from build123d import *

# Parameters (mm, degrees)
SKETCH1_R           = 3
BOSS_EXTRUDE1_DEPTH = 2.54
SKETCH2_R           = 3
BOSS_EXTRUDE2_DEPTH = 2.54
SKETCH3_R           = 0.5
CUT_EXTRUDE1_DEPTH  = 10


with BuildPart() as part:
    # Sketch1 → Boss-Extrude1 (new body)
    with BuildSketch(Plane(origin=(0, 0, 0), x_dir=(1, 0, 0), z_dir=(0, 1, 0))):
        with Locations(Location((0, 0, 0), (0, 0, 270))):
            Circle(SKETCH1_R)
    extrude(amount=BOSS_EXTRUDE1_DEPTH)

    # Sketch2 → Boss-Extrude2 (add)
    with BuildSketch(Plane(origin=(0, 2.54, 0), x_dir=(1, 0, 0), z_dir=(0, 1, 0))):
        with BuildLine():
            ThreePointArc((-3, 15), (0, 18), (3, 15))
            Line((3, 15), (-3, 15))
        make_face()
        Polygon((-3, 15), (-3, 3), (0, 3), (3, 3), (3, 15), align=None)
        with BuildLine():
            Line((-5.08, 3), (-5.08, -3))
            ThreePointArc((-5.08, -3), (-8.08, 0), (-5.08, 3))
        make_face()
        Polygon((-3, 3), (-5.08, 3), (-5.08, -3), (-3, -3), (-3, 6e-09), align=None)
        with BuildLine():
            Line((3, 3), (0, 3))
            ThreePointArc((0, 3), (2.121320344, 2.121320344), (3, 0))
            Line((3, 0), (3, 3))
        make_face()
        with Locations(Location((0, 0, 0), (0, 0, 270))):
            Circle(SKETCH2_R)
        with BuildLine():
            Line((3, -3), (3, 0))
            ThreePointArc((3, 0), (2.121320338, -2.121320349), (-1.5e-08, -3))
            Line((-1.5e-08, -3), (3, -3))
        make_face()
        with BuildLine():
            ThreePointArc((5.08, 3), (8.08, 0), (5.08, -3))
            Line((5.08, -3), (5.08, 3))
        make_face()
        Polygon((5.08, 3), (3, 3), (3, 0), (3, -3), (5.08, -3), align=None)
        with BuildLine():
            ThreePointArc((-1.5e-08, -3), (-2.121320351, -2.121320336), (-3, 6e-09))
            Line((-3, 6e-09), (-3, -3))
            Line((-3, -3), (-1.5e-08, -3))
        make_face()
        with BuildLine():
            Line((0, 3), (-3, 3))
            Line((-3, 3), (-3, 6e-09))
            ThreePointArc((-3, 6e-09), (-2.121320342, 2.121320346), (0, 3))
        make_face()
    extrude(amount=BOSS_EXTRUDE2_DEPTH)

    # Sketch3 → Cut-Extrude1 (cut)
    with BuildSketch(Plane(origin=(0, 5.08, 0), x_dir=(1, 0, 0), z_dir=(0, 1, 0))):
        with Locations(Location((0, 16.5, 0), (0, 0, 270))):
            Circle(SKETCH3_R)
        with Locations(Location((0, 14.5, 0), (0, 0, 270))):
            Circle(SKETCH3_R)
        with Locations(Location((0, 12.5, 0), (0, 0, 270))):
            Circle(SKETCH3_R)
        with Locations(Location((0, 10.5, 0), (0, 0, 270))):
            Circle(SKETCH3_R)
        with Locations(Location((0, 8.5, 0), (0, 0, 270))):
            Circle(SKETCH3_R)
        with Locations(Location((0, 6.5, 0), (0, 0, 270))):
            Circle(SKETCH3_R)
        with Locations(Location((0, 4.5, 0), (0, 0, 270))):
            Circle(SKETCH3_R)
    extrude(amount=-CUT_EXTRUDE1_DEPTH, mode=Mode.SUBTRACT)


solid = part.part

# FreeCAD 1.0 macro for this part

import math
import FreeCAD as App
import Part
import Sketcher

V = App.Vector
Q = App.Units.Quantity

doc = App.newDocument("Part")
body = doc.addObject("PartDesign::Body", "Body")

sketch1 = body.newObject("Sketcher::SketchObject", "Sketch")
sketch1.AttachmentSupport = (doc.getObject("XZ_Plane"), [""])
sketch1.MapMode = "FlatFace"
sketch1.addGeometry(Part.Circle(V(0, 0, 0), V(0, 0, 1), 3), False)
sketch1.addConstraint(Sketcher.Constraint("Coincident", 0, 3, -1, 1))
sketch1.addConstraint(Sketcher.Constraint("Diameter", 0, Q("6 mm")))
pad1 = body.newObject("PartDesign::Pad", "Pad")
pad1.Profile = sketch1
pad1.Length = 2.54
pad1.Reversed = True

sketch2 = body.newObject("Sketcher::SketchObject", "Sketch001")
sketch2.AttachmentSupport = (doc.getObject("XZ_Plane"), [""])
sketch2.MapMode = "FlatFace"
sketch2.AttachmentOffset = App.Placement(V(0, 0, -2.54), App.Rotation())
sketch2.addGeometry(Part.LineSegment(V(-3, -3, 0), V(-5.08, -3, 0)), False)
sketch2.addGeometry(Part.ArcOfCircle(Part.Circle(V(-5.08, 0, 0), V(0, 0, 1), 3), math.radians(90), math.radians(270)), False)
sketch2.addGeometry(Part.LineSegment(V(-5.08, 3, 0), V(5.08, 3, 0)), False)
sketch2.addGeometry(Part.ArcOfCircle(Part.Circle(V(5.08, 0, 0), V(0, 0, 1), 3), math.radians(-90), math.radians(90)), False)
sketch2.addGeometry(Part.LineSegment(V(5.08, -3, 0), V(3, -3, 0)), False)
sketch2.addGeometry(Part.LineSegment(V(3, -3, 0), V(3, -15, 0)), False)
sketch2.addGeometry(Part.ArcOfCircle(Part.Circle(V(0, -15, 0), V(0, 0, 1), 3), math.radians(180), math.radians(360)), False)
sketch2.addGeometry(Part.LineSegment(V(-3, -15, 0), V(-3, -3, 0)), False)
sketch2.addConstraint(Sketcher.Constraint("Tangent", 0, 2, 1, 2))
sketch2.addConstraint(Sketcher.Constraint("Tangent", 1, 1, 2, 1))
sketch2.addConstraint(Sketcher.Constraint("Tangent", 2, 2, 3, 2))
sketch2.addConstraint(Sketcher.Constraint("Tangent", 3, 1, 4, 1))
sketch2.addConstraint(Sketcher.Constraint("Coincident", 4, 2, 5, 1))
sketch2.addConstraint(Sketcher.Constraint("Tangent", 5, 2, 6, 2))
sketch2.addConstraint(Sketcher.Constraint("Tangent", 6, 1, 7, 1))
sketch2.addConstraint(Sketcher.Constraint("Coincident", 7, 2, 0, 1))
sketch2.addConstraint(Sketcher.Constraint("Horizontal", 0))
sketch2.addConstraint(Sketcher.Constraint("Horizontal", 2))
sketch2.addConstraint(Sketcher.Constraint("Horizontal", 4))
sketch2.addConstraint(Sketcher.Constraint("Vertical", 5))
sketch2.addConstraint(Sketcher.Constraint("Vertical", 7))
sketch2.addConstraint(Sketcher.Constraint("Equal", 1, 3))
sketch2.addConstraint(Sketcher.Constraint("Equal", 3, 6))
sketch2.addConstraint(Sketcher.Constraint("Symmetric", 1, 3, 3, 3, -1, 1))
sketch2.addConstraint(Sketcher.Constraint("PointOnObject", 6, 3, -2))
sketch2.addConstraint(Sketcher.Constraint("Radius", 1, Q("3 mm")))
sketch2.addConstraint(Sketcher.Constraint("DistanceY", 5, 2, 5, 1, Q("12 mm")))
sketch2.addConstraint(Sketcher.Constraint("DistanceX", 0, 2, 0, 1, Q("2.08 mm")))
pad2 = body.newObject("PartDesign::Pad", "Pad001")
pad2.Profile = sketch2
pad2.Length = 2.54
pad2.Reversed = True

sketch3 = body.newObject("Sketcher::SketchObject", "Sketch002")
sketch3.AttachmentSupport = (doc.getObject("XZ_Plane"), [""])
sketch3.MapMode = "FlatFace"
sketch3.AttachmentOffset = App.Placement(V(0, 0, -5.08), App.Rotation())
sketch3.addGeometry(Part.Circle(V(0, -16.5, 0), V(0, 0, 1), 0.5), False)
sketch3.addGeometry(Part.Circle(V(0, -14.5, 0), V(0, 0, 1), 0.5), False)
sketch3.addGeometry(Part.Circle(V(0, -12.5, 0), V(0, 0, 1), 0.5), False)
sketch3.addGeometry(Part.Circle(V(0, -10.5, 0), V(0, 0, 1), 0.5), False)
sketch3.addGeometry(Part.Circle(V(0, -8.5, 0), V(0, 0, 1), 0.5), False)
sketch3.addGeometry(Part.Circle(V(0, -6.5, 0), V(0, 0, 1), 0.5), False)
sketch3.addGeometry(Part.Circle(V(0, -4.5, 0), V(0, 0, 1), 0.5), False)
sketch3.addConstraint(Sketcher.Constraint("Equal", 0, 1))
sketch3.addConstraint(Sketcher.Constraint("Equal", 1, 2))
sketch3.addConstraint(Sketcher.Constraint("Equal", 2, 3))
sketch3.addConstraint(Sketcher.Constraint("Equal", 3, 4))
sketch3.addConstraint(Sketcher.Constraint("Equal", 4, 5))
sketch3.addConstraint(Sketcher.Constraint("Equal", 5, 6))
sketch3.addConstraint(Sketcher.Constraint("PointOnObject", 0, 3, -2))
sketch3.addConstraint(Sketcher.Constraint("PointOnObject", 1, 3, -2))
sketch3.addConstraint(Sketcher.Constraint("PointOnObject", 2, 3, -2))
sketch3.addConstraint(Sketcher.Constraint("PointOnObject", 3, 3, -2))
sketch3.addConstraint(Sketcher.Constraint("PointOnObject", 4, 3, -2))
sketch3.addConstraint(Sketcher.Constraint("PointOnObject", 5, 3, -2))
sketch3.addConstraint(Sketcher.Constraint("PointOnObject", 6, 3, -2))
sketch3.addConstraint(Sketcher.Constraint("Diameter", 0, Q("1 mm")))
sketch3.addConstraint(Sketcher.Constraint("DistanceY", 0, 3, 1, 3, Q("2 mm")))
sketch3.addConstraint(Sketcher.Constraint("DistanceY", 1, 3, 2, 3, Q("2 mm")))
sketch3.addConstraint(Sketcher.Constraint("DistanceY", 2, 3, 3, 3, Q("2 mm")))
sketch3.addConstraint(Sketcher.Constraint("DistanceY", 3, 3, 4, 3, Q("2 mm")))
sketch3.addConstraint(Sketcher.Constraint("DistanceY", 4, 3, 5, 3, Q("2 mm")))
sketch3.addConstraint(Sketcher.Constraint("DistanceY", 5, 3, 6, 3, Q("2 mm")))
sketch3.addConstraint(Sketcher.Constraint("DistanceY", 0, 3, -1, 1, Q("16.5 mm")))
pocket1 = body.newObject("PartDesign::Pocket", "Pocket")
pocket1.Profile = sketch3
pocket1.Length = 10
pocket1.Reversed = True

doc.recompute()
